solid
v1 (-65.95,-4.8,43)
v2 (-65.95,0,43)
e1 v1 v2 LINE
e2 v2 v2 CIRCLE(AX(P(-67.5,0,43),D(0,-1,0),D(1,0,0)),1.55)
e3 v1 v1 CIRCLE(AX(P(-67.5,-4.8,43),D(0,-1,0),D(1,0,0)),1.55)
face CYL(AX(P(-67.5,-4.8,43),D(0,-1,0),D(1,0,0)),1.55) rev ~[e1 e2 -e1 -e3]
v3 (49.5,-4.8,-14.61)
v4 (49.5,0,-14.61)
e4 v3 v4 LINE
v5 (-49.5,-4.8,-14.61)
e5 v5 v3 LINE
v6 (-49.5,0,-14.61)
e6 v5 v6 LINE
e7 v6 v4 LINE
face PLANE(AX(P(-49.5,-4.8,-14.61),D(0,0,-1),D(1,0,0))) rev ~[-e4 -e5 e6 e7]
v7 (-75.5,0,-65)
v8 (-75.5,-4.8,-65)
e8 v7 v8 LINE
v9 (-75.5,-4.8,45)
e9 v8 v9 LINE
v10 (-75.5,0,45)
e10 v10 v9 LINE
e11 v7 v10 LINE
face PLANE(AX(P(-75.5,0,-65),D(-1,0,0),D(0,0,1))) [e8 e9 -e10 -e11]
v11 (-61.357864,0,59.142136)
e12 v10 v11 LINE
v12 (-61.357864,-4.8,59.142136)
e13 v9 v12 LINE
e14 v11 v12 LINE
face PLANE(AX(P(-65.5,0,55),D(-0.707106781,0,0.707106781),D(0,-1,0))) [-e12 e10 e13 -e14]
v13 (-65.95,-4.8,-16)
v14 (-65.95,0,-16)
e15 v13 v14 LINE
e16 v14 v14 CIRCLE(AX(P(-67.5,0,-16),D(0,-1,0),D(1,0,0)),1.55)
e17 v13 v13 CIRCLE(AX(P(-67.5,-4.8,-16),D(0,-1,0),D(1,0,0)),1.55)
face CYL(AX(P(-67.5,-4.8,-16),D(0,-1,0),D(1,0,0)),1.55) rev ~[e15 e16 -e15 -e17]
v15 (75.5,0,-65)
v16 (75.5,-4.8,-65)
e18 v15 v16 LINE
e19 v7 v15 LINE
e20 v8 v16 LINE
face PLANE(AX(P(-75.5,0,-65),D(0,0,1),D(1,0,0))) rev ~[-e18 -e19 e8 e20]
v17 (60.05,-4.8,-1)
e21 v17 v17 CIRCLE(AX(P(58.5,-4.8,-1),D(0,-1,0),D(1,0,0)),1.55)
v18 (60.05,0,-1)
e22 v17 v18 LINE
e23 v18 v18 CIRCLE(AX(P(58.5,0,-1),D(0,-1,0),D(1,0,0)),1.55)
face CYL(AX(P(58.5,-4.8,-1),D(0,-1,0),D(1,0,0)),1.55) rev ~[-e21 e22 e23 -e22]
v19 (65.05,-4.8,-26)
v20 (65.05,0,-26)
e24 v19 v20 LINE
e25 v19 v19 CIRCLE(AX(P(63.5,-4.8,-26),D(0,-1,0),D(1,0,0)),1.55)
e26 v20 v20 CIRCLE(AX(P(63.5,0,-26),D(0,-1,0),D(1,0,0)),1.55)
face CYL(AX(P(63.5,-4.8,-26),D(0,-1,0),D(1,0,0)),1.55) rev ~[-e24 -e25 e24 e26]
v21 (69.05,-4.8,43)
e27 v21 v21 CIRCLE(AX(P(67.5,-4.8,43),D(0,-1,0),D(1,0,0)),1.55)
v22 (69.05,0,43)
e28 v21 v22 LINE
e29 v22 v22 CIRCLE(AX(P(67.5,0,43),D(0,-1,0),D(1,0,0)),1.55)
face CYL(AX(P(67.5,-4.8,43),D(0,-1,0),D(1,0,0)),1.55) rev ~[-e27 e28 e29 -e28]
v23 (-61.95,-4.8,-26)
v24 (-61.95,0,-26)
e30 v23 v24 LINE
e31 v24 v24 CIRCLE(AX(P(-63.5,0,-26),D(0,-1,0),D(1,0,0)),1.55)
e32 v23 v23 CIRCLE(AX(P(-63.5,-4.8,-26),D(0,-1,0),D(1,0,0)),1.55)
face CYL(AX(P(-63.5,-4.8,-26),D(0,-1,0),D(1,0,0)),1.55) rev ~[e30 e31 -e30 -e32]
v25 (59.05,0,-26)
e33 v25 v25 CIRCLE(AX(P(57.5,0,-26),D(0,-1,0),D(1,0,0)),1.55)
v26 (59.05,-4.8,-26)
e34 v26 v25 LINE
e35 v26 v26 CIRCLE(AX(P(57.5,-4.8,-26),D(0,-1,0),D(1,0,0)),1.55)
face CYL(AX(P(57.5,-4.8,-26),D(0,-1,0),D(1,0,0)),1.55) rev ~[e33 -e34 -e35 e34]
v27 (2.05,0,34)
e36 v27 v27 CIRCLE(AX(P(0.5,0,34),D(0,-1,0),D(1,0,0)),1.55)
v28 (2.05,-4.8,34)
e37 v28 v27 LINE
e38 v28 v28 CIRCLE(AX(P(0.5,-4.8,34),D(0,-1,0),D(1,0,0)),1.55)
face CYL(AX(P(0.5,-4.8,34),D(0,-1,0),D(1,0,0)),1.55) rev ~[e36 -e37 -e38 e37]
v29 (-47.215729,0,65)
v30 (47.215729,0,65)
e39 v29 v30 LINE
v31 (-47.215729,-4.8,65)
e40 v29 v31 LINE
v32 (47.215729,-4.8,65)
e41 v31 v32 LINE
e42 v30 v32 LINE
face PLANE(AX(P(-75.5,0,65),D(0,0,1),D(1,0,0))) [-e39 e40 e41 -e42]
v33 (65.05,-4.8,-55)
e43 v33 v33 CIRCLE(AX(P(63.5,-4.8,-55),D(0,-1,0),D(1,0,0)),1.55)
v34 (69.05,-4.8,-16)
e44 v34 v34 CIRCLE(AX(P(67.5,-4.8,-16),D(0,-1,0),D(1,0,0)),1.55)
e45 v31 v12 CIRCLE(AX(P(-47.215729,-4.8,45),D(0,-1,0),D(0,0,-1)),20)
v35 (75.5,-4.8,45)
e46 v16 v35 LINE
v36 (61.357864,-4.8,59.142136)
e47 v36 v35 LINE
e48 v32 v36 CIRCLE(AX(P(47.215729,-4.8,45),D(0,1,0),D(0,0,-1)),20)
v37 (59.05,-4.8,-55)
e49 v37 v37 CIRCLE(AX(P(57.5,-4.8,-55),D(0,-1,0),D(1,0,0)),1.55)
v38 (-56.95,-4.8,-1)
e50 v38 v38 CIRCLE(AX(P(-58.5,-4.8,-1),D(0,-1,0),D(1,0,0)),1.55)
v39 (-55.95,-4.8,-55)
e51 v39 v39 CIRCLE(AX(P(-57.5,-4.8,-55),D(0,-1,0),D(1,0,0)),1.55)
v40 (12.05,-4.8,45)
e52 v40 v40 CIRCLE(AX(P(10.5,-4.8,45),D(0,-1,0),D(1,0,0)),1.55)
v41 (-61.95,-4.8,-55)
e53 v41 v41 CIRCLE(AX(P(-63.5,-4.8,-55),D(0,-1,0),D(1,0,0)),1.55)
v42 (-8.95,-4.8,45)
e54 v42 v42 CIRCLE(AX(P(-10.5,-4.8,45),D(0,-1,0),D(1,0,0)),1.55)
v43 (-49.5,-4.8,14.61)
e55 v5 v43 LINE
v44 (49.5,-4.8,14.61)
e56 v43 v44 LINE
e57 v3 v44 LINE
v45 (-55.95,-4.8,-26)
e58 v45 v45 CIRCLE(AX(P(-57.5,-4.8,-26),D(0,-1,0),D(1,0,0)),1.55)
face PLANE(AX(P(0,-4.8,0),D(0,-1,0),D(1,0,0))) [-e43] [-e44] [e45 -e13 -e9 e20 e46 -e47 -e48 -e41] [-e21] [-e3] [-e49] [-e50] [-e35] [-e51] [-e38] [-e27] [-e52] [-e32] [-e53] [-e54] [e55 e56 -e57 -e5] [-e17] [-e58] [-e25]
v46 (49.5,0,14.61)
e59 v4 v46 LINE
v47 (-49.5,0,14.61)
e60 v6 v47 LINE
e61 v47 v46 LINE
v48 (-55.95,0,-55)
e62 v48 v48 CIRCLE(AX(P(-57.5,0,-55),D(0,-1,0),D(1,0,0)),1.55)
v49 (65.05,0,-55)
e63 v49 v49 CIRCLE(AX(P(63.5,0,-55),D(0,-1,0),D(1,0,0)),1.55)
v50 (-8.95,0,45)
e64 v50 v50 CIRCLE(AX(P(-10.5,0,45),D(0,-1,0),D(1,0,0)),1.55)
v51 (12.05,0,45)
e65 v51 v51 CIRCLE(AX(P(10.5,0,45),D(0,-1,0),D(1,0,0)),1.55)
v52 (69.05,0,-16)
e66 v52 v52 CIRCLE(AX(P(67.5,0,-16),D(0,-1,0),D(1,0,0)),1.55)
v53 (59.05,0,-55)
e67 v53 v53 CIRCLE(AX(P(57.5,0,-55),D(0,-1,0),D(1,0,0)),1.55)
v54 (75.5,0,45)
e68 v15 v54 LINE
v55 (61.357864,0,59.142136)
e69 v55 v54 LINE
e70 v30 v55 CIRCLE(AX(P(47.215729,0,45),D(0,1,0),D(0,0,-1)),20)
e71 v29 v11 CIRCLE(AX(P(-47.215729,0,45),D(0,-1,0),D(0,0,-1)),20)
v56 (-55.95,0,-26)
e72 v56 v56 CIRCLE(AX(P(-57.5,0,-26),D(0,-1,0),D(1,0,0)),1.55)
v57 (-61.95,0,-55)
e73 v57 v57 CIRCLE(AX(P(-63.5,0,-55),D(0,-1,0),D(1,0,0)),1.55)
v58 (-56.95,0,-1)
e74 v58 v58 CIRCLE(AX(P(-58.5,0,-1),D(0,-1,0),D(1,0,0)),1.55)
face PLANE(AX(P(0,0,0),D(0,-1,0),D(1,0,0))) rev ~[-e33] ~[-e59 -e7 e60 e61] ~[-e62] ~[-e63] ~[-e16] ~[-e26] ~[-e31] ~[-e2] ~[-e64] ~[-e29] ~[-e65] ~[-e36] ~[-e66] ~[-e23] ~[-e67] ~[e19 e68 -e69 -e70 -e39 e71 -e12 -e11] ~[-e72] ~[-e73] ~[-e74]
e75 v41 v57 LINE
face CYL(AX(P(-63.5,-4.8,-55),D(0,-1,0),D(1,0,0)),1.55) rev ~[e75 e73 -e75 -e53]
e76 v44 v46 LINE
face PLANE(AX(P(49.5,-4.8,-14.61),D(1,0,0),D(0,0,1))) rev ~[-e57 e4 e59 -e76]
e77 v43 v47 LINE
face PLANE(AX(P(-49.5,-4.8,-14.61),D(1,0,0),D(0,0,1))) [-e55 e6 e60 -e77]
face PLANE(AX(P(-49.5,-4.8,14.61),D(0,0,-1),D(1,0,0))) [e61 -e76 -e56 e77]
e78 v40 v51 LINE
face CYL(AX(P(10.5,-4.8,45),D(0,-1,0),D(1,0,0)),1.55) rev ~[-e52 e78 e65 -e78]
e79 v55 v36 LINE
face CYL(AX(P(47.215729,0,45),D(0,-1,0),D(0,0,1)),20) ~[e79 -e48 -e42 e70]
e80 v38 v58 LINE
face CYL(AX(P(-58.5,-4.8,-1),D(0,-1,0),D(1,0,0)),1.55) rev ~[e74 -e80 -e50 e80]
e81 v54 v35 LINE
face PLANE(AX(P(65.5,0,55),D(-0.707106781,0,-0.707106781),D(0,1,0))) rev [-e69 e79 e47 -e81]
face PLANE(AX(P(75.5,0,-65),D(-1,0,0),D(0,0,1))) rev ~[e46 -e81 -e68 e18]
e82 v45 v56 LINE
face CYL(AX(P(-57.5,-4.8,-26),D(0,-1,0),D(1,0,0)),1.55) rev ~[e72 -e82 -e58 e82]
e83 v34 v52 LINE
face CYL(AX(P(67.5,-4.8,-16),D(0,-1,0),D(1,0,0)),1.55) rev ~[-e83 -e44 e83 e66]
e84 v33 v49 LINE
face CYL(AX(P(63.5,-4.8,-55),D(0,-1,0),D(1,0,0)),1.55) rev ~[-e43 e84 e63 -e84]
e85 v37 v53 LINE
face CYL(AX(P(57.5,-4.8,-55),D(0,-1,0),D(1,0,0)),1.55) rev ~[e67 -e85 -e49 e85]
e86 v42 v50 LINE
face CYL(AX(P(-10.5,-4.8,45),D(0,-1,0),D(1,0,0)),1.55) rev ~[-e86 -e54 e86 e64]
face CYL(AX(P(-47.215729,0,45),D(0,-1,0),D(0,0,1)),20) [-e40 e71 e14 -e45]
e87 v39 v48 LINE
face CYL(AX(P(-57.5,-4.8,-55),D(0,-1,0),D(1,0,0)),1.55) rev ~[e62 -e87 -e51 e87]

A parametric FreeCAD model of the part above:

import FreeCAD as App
import Part
import Sketcher
Q = App.Units.Quantity


def edges_at(feature, points):
    """Names of the edges that pass closest to the given points."""
    edges = feature.Shape.Edges
    near = lambda p: min(range(len(edges)), key=lambda i: edges[i].distToShape(Part.Vertex(*p))[0])
    return sorted({f"Edge{near(p) + 1}" for p in points})


def add_polygon(sketch, points):
    """Adds a closed chain of lines whose ends are joined by coincident constraints."""
    first, n = sketch.GeometryCount, len(points)
    for a, b in zip(points, points[1:] + points[:1]):
        sketch.addGeometry(Part.LineSegment(App.Vector(*a, 0), App.Vector(*b, 0)), False)
    for i in range(n):
        sketch.addConstraint(Sketcher.Constraint("Coincident", first + i, 2, first + (i + 1) % n, 1))

doc = App.newDocument("Part")
body = doc.addObject("PartDesign::Body", "Body")

# Sketch on XZ plane
sketch1 = body.newObject("Sketcher::SketchObject", "Sketch")
sketch1.AttachmentSupport = (doc.getObject("XZ_Plane"), [""])
sketch1.MapMode = "FlatFace"
add_polygon(sketch1, [(-75.5, 65), (-75.5, -65), (75.5, -65), (75.5, 65)])  # lines 0-3
sketch1.addConstraint([
    Sketcher.Constraint("Vertical", 0),
    Sketcher.Constraint("Horizontal", 1),
    Sketcher.Constraint("Vertical", 2),
    Sketcher.Constraint("Horizontal", 3),
    Sketcher.Constraint("Symmetric", 0, 2, 2, 2, -1, 1),
    Sketcher.Constraint("DistanceX", 1, 1, 1, 2, Q("151 mm")),
    Sketcher.Constraint("DistanceY", 0, 2, 0, 1, Q("130 mm")),
])
pad1 = body.newObject("PartDesign::Pad", "Pad")
pad1.Profile = sketch1
pad1.Length = 4.8

# Sketch on XZ plane
sketch2 = body.newObject("Sketcher::SketchObject", "Sketch001")
sketch2.AttachmentSupport = (doc.getObject("XZ_Plane"), [""])
sketch2.MapMode = "FlatFace"
sketch2.AttachmentOffset = App.Placement(App.Vector(0, 0, 4.8), App.Rotation())
add_polygon(sketch2, [(-49.5, 14.61), (-49.5, -14.61), (49.5, -14.61), (49.5, 14.61)])  # lines 0-3
sketch2.addConstraint([
    Sketcher.Constraint("Vertical", 0),
    Sketcher.Constraint("Horizontal", 1),
    Sketcher.Constraint("Vertical", 2),
    Sketcher.Constraint("Horizontal", 3),
    Sketcher.Constraint("Symmetric", 0, 2, 2, 2, -1, 1),
    Sketcher.Constraint("DistanceX", 1, 1, 1, 2, Q("99 mm")),
    Sketcher.Constraint("DistanceY", 0, 2, 0, 1, Q("29.22 mm")),
])
pocket1 = body.newObject("PartDesign::Pocket", "Pocket")
pocket1.Profile = sketch2
pocket1.Length = 4.8

# Sketch on XZ plane
sketch3 = body.newObject("Sketcher::SketchObject", "Sketch002")
sketch3.AttachmentSupport = (doc.getObject("XZ_Plane"), [""])
sketch3.MapMode = "FlatFace"
sketch3.AttachmentOffset = App.Placement(App.Vector(0, 0, 4.8), App.Rotation())
add_polygon(sketch3, [(-49.5, 14.61), (-49.5, -14.61), (49.5, -14.61), (49.5, 14.61)])  # lines 0-3
sketch3.addGeometry(Part.Circle(App.Vector(-63.5, -55, 0), App.Vector(0, 0, 1), 1.55), False)  # 4
sketch3.addGeometry(Part.Circle(App.Vector(-57.5, -55, 0), App.Vector(0, 0, 1), 1.55), False)  # 5
sketch3.addGeometry(Part.Circle(App.Vector(-63.5, -26, 0), App.Vector(0, 0, 1), 1.55), False)  # 6
sketch3.addGeometry(Part.Circle(App.Vector(-57.5, -26, 0), App.Vector(0, 0, 1), 1.55), False)  # 7
sketch3.addGeometry(Part.Circle(App.Vector(57.5, -26, 0), App.Vector(0, 0, 1), 1.55), False)  # 8
sketch3.addGeometry(Part.Circle(App.Vector(63.5, -26, 0), App.Vector(0, 0, 1), 1.55), False)  # 9
sketch3.addGeometry(Part.Circle(App.Vector(57.5, -55, 0), App.Vector(0, 0, 1), 1.55), False)  # 10
sketch3.addGeometry(Part.Circle(App.Vector(63.5, -55, 0), App.Vector(0, 0, 1), 1.55), False)  # 11
sketch3.addGeometry(Part.Circle(App.Vector(-67.5, -16, 0), App.Vector(0, 0, 1), 1.55), False)  # 12
sketch3.addGeometry(Part.Circle(App.Vector(67.5, -16, 0), App.Vector(0, 0, 1), 1.55), False)  # 13
sketch3.addGeometry(Part.Circle(App.Vector(-58.5, -1, 0), App.Vector(0, 0, 1), 1.55), False)  # 14
sketch3.addGeometry(Part.Circle(App.Vector(58.5, -1, 0), App.Vector(0, 0, 1), 1.55), False)  # 15
sketch3.addGeometry(Part.Circle(App.Vector(67.5, 43, 0), App.Vector(0, 0, 1), 1.55), False)  # 16
sketch3.addGeometry(Part.Circle(App.Vector(-67.5, 43, 0), App.Vector(0, 0, 1), 1.55), False)  # 17
sketch3.addGeometry(Part.Circle(App.Vector(-10.5, 45, 0), App.Vector(0, 0, 1), 1.55), False)  # 18
sketch3.addGeometry(Part.Circle(App.Vector(10.5, 45, 0), App.Vector(0, 0, 1), 1.55), False)  # 19
sketch3.addGeometry(Part.Circle(App.Vector(0.5, 34, 0), App.Vector(0, 0, 1), 1.55), False)  # 20
sketch3.addConstraint([
    Sketcher.Constraint("Vertical", 0),
    Sketcher.Constraint("Horizontal", 1),
    Sketcher.Constraint("Vertical", 2),
    Sketcher.Constraint("Horizontal", 3),
    Sketcher.Constraint("Equal", 4, 5),
    Sketcher.Constraint("Equal", 5, 6),
    Sketcher.Constraint("Equal", 6, 7),
    Sketcher.Constraint("Equal", 7, 8),
    Sketcher.Constraint("Equal", 8, 9),
    Sketcher.Constraint("Equal", 9, 10),
    Sketcher.Constraint("Equal", 10, 11),
    Sketcher.Constraint("Equal", 11, 12),
    Sketcher.Constraint("Equal", 12, 13),
    Sketcher.Constraint("Equal", 13, 14),
    Sketcher.Constraint("Equal", 14, 15),
    Sketcher.Constraint("Equal", 15, 16),
    Sketcher.Constraint("Equal", 16, 17),
    Sketcher.Constraint("Equal", 17, 18),
    Sketcher.Constraint("Equal", 18, 19),
    Sketcher.Constraint("Equal", 19, 20),
    Sketcher.Constraint("Symmetric", 0, 2, 2, 2, -1, 1),
    Sketcher.Constraint("Symmetric", 7, 3, 8, 3, -2),
    Sketcher.Constraint("Symmetric", 6, 3, 9, 3, -2),
    Sketcher.Constraint("Symmetric", 5, 3, 10, 3, -2),
    Sketcher.Constraint("Symmetric", 4, 3, 11, 3, -2),
    Sketcher.Constraint("Symmetric", 12, 3, 13, 3, -2),
    Sketcher.Constraint("Symmetric", 14, 3, 15, 3, -2),
    Sketcher.Constraint("Symmetric", 16, 3, 17, 3, -2),
    Sketcher.Constraint("Symmetric", 18, 3, 19, 3, -2),
    Sketcher.Constraint("Horizontal", 4, 3, 5, 3),
    Sketcher.Constraint("Horizontal", 6, 3, 7, 3),
    Sketcher.Constraint("Vertical", 4, 3, 6, 3),
    Sketcher.Constraint("Vertical", 5, 3, 7, 3),
    Sketcher.Constraint("Vertical", 13, 3, 16, 3),
    Sketcher.Constraint("Diameter", 4, Q("3.1 mm")),
    Sketcher.Constraint("DistanceX", 1, 1, 1, 2, Q("99 mm")),
    Sketcher.Constraint("DistanceY", 4, 3, -1, 1, Q("55 mm")),
    Sketcher.Constraint("DistanceY", 6, 3, -1, 1, Q("26 mm")),
    Sketcher.Constraint("DistanceY", 12, 3, -1, 1, Q("16 mm")),
    Sketcher.Constraint("DistanceY", 14, 3, -1, 1, Q("1 mm")),
    Sketcher.Constraint("DistanceY", -1, 1, 16, 3, Q("43 mm")),
    Sketcher.Constraint("DistanceY", -1, 1, 18, 3, Q("45 mm")),
    Sketcher.Constraint("DistanceY", -1, 1, 20, 3, Q("34 mm")),
    Sketcher.Constraint("DistanceX", 4, 3, 5, 3, Q("6 mm")),
    Sketcher.Constraint("DistanceX", 7, 3, 8, 3, Q("115 mm")),
    Sketcher.Constraint("DistanceX", 12, 3, 6, 3, Q("4 mm")),
    Sketcher.Constraint("DistanceX", 12, 3, 14, 3, Q("9 mm")),
    Sketcher.Constraint("DistanceX", 17, 3, 18, 3, Q("57 mm")),
    Sketcher.Constraint("DistanceX", 20, 3, 19, 3, Q("10 mm")),
    Sketcher.Constraint("DistanceY", 0, 2, 0, 1, Q("29.22 mm")),
])
pocket2 = body.newObject("PartDesign::Pocket", "Pocket001")
pocket2.Profile = sketch3
pocket2.Length = 4.8
doc.recompute()

chamfer = body.newObject("PartDesign::Chamfer", "Chamfer")
chamfer.Base = (pocket2, edges_at(pocket2, [(-75.5, -2.4, 65)]))
chamfer.Size = 20
doc.recompute()

chamfer2 = body.newObject("PartDesign::Chamfer", "Chamfer001")
chamfer2.Base = (chamfer, edges_at(chamfer, [(75.5, -2.4, 65)]))
chamfer2.Size = 20
doc.recompute()

fillet = body.newObject("PartDesign::Fillet", "Fillet")
fillet.Base = (chamfer2, edges_at(chamfer2, [(-55.5, -2.4, 65)]))
fillet.Radius = 20
doc.recompute()

fillet2 = body.newObject("PartDesign::Fillet", "Fillet001")
fillet2.Base = (fillet, edges_at(fillet, [(55.5, -2.4, 65)]))
fillet2.Radius = 20

doc.recompute()
